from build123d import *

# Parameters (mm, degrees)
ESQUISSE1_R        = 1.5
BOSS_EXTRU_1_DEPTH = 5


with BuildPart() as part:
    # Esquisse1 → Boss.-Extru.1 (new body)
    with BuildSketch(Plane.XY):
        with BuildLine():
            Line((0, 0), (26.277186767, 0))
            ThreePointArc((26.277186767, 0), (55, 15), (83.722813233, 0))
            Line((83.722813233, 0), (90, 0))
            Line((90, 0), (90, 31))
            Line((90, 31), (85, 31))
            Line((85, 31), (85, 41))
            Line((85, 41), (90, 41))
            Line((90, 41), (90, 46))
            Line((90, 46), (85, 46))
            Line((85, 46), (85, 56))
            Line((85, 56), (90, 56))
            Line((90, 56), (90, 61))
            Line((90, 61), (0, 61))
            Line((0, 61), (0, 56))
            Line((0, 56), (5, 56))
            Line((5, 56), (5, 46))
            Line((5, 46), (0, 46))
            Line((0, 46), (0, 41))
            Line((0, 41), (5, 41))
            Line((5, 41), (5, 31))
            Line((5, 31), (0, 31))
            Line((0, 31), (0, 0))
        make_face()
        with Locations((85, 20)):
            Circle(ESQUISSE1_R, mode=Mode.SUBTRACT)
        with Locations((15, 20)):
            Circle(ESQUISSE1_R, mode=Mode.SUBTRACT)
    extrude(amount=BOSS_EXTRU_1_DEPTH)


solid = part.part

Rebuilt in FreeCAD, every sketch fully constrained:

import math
import FreeCAD as App
import Part
import Sketcher

V = App.Vector
Q = App.Units.Quantity

doc = App.newDocument("Part")
body = doc.addObject("PartDesign::Body", "Body")

sketch1 = body.newObject("Sketcher::SketchObject", "Sketch")
sketch1.AttachmentSupport = (doc.getObject("XY_Plane"), [""])
sketch1.MapMode = "FlatFace"
sketch1.addGeometry([
    Part.LineSegment(V(0, 0, 0), V(26.277187, 0, 0)),
    Part.ArcOfCircle(Part.Circle(V(55, -20, 0), V(0, 0, 1), 35), math.radians(34.849905), math.radians(145.150095)),
    Part.LineSegment(V(83.722813, 0, 0), V(90, 0, 0)),
    Part.LineSegment(V(90, 0, 0), V(90, 31, 0)),
    Part.LineSegment(V(90, 31, 0), V(85, 31, 0)),
    Part.LineSegment(V(85, 31, 0), V(85, 41, 0)),
    Part.LineSegment(V(85, 41, 0), V(90, 41, 0)),
    Part.LineSegment(V(90, 41, 0), V(90, 46, 0)),
    Part.LineSegment(V(90, 46, 0), V(85, 46, 0)),
    Part.LineSegment(V(85, 46, 0), V(85, 56, 0)),
    Part.LineSegment(V(85, 56, 0), V(90, 56, 0)),
    Part.LineSegment(V(90, 56, 0), V(90, 61, 0)),
    Part.LineSegment(V(90, 61, 0), V(0, 61, 0)),
    Part.LineSegment(V(0, 61, 0), V(0, 56, 0)),
    Part.LineSegment(V(0, 56, 0), V(5, 56, 0)),
    Part.LineSegment(V(5, 56, 0), V(5, 46, 0)),
    Part.LineSegment(V(5, 46, 0), V(0, 46, 0)),
    Part.LineSegment(V(0, 46, 0), V(0, 41, 0)),
    Part.LineSegment(V(0, 41, 0), V(5, 41, 0)),
    Part.LineSegment(V(5, 41, 0), V(5, 31, 0)),
    Part.LineSegment(V(5, 31, 0), V(0, 31, 0)),
    Part.LineSegment(V(0, 31, 0), V(0, 0, 0)),
    Part.Circle(V(15, 20, 0), V(0, 0, 1), 1.5),
    Part.Circle(V(85, 20, 0), V(0, 0, 1), 1.5),
], False)
sketch1.addConstraint([
    Sketcher.Constraint("Coincident", 0, 2, 1, 2),
    Sketcher.Constraint("Coincident", 1, 1, 2, 1),
    Sketcher.Constraint("Coincident", 2, 2, 3, 1),
    Sketcher.Constraint("Coincident", 3, 2, 4, 1),
    Sketcher.Constraint("Coincident", 4, 2, 5, 1),
    Sketcher.Constraint("Coincident", 5, 2, 6, 1),
    Sketcher.Constraint("Coincident", 6, 2, 7, 1),
    Sketcher.Constraint("Coincident", 7, 2, 8, 1),
    Sketcher.Constraint("Coincident", 8, 2, 9, 1),
    Sketcher.Constraint("Coincident", 9, 2, 10, 1),
    Sketcher.Constraint("Coincident", 10, 2, 11, 1),
    Sketcher.Constraint("Coincident", 11, 2, 12, 1),
    Sketcher.Constraint("Coincident", 12, 2, 13, 1),
    Sketcher.Constraint("Coincident", 13, 2, 14, 1),
    Sketcher.Constraint("Coincident", 14, 2, 15, 1),
    Sketcher.Constraint("Coincident", 15, 2, 16, 1),
    Sketcher.Constraint("Coincident", 16, 2, 17, 1),
    Sketcher.Constraint("Coincident", 17, 2, 18, 1),
    Sketcher.Constraint("Coincident", 18, 2, 19, 1),
    Sketcher.Constraint("Coincident", 19, 2, 20, 1),
    Sketcher.Constraint("Coincident", 20, 2, 21, 1),
    Sketcher.Constraint("Coincident", 21, 2, 0, 1),
    Sketcher.Constraint("Horizontal", 0),
    Sketcher.Constraint("Horizontal", 2),
    Sketcher.Constraint("Vertical", 3),
    Sketcher.Constraint("Horizontal", 4),
    Sketcher.Constraint("Vertical", 5),
    Sketcher.Constraint("Horizontal", 6),
    Sketcher.Constraint("Vertical", 7),
    Sketcher.Constraint("Horizontal", 8),
    Sketcher.Constraint("Vertical", 9),
    Sketcher.Constraint("Horizontal", 10),
    Sketcher.Constraint("Vertical", 11),
    Sketcher.Constraint("Horizontal", 12),
    Sketcher.Constraint("Vertical", 13),
    Sketcher.Constraint("Horizontal", 14),
    Sketcher.Constraint("Vertical", 15),
    Sketcher.Constraint("Horizontal", 16),
    Sketcher.Constraint("Vertical", 17),
    Sketcher.Constraint("Horizontal", 18),
    Sketcher.Constraint("Vertical", 19),
    Sketcher.Constraint("Horizontal", 20),
    Sketcher.Constraint("Vertical", 21),
    Sketcher.Constraint("Coincident", 21, 2, -1, 1),
    Sketcher.Constraint("Equal", 22, 23),
    Sketcher.Constraint("PointOnObject", 1, 1, -1),
    Sketcher.Constraint("PointOnObject", 12, 2, -2),
    Sketcher.Constraint("PointOnObject", 16, 2, -2),
    Sketcher.Constraint("Horizontal", 22, 3, 23, 3),
    Sketcher.Constraint("Horizontal", 10, 2, 13, 2),
    Sketcher.Constraint("Horizontal", 8, 2, 15, 2),
    Sketcher.Constraint("Horizontal", 6, 2, 17, 2),
    Sketcher.Constraint("Horizontal", 4, 2, 19, 2),
    Sketcher.Constraint("Vertical", 23, 3, 4, 2),
    Sketcher.Constraint("Vertical", 3, 2, 6, 2),
    Sketcher.Constraint("Vertical", 5, 2, 8, 2),
    Sketcher.Constraint("Vertical", 7, 2, 10, 2),
    Sketcher.Constraint("Vertical", 15, 2, 18, 2),
    Sketcher.Constraint("Equal", 10, 14),
    Sketcher.Constraint("Equal", 20, 7),
    Sketcher.Constraint("Equal", 5, 9),
    Sketcher.Constraint("Equal", 7, 11),
    Sketcher.Constraint("Diameter", 22, Q("3 mm")),
    Sketcher.Constraint("Radius", 1, Q("35 mm")),
    Sketcher.Constraint("DistanceX", 4, 2, 4, 1, Q("5 mm")),
    Sketcher.Constraint("DistanceX", 12, 2, 12, 1, Q("90 mm")),
    Sketcher.Constraint("DistanceY", 3, 1, 3, 2, Q("31 mm")),
    Sketcher.Constraint("DistanceY", 5, 1, 5, 2, Q("10 mm")),
    Sketcher.Constraint("DistanceX", -1, 1, 1, 3, Q("55 mm")),
    Sketcher.Constraint("DistanceY", 1, 3, -1, 1, Q("20 mm")),
    Sketcher.Constraint("DistanceX", -1, 1, 22, 3, Q("15 mm")),
    Sketcher.Constraint("DistanceY", -1, 1, 22, 3, Q("20 mm")),
])
pad1 = body.newObject("PartDesign::Pad", "Pad")
pad1.Profile = sketch1
pad1.Length = 5

doc.recompute()
